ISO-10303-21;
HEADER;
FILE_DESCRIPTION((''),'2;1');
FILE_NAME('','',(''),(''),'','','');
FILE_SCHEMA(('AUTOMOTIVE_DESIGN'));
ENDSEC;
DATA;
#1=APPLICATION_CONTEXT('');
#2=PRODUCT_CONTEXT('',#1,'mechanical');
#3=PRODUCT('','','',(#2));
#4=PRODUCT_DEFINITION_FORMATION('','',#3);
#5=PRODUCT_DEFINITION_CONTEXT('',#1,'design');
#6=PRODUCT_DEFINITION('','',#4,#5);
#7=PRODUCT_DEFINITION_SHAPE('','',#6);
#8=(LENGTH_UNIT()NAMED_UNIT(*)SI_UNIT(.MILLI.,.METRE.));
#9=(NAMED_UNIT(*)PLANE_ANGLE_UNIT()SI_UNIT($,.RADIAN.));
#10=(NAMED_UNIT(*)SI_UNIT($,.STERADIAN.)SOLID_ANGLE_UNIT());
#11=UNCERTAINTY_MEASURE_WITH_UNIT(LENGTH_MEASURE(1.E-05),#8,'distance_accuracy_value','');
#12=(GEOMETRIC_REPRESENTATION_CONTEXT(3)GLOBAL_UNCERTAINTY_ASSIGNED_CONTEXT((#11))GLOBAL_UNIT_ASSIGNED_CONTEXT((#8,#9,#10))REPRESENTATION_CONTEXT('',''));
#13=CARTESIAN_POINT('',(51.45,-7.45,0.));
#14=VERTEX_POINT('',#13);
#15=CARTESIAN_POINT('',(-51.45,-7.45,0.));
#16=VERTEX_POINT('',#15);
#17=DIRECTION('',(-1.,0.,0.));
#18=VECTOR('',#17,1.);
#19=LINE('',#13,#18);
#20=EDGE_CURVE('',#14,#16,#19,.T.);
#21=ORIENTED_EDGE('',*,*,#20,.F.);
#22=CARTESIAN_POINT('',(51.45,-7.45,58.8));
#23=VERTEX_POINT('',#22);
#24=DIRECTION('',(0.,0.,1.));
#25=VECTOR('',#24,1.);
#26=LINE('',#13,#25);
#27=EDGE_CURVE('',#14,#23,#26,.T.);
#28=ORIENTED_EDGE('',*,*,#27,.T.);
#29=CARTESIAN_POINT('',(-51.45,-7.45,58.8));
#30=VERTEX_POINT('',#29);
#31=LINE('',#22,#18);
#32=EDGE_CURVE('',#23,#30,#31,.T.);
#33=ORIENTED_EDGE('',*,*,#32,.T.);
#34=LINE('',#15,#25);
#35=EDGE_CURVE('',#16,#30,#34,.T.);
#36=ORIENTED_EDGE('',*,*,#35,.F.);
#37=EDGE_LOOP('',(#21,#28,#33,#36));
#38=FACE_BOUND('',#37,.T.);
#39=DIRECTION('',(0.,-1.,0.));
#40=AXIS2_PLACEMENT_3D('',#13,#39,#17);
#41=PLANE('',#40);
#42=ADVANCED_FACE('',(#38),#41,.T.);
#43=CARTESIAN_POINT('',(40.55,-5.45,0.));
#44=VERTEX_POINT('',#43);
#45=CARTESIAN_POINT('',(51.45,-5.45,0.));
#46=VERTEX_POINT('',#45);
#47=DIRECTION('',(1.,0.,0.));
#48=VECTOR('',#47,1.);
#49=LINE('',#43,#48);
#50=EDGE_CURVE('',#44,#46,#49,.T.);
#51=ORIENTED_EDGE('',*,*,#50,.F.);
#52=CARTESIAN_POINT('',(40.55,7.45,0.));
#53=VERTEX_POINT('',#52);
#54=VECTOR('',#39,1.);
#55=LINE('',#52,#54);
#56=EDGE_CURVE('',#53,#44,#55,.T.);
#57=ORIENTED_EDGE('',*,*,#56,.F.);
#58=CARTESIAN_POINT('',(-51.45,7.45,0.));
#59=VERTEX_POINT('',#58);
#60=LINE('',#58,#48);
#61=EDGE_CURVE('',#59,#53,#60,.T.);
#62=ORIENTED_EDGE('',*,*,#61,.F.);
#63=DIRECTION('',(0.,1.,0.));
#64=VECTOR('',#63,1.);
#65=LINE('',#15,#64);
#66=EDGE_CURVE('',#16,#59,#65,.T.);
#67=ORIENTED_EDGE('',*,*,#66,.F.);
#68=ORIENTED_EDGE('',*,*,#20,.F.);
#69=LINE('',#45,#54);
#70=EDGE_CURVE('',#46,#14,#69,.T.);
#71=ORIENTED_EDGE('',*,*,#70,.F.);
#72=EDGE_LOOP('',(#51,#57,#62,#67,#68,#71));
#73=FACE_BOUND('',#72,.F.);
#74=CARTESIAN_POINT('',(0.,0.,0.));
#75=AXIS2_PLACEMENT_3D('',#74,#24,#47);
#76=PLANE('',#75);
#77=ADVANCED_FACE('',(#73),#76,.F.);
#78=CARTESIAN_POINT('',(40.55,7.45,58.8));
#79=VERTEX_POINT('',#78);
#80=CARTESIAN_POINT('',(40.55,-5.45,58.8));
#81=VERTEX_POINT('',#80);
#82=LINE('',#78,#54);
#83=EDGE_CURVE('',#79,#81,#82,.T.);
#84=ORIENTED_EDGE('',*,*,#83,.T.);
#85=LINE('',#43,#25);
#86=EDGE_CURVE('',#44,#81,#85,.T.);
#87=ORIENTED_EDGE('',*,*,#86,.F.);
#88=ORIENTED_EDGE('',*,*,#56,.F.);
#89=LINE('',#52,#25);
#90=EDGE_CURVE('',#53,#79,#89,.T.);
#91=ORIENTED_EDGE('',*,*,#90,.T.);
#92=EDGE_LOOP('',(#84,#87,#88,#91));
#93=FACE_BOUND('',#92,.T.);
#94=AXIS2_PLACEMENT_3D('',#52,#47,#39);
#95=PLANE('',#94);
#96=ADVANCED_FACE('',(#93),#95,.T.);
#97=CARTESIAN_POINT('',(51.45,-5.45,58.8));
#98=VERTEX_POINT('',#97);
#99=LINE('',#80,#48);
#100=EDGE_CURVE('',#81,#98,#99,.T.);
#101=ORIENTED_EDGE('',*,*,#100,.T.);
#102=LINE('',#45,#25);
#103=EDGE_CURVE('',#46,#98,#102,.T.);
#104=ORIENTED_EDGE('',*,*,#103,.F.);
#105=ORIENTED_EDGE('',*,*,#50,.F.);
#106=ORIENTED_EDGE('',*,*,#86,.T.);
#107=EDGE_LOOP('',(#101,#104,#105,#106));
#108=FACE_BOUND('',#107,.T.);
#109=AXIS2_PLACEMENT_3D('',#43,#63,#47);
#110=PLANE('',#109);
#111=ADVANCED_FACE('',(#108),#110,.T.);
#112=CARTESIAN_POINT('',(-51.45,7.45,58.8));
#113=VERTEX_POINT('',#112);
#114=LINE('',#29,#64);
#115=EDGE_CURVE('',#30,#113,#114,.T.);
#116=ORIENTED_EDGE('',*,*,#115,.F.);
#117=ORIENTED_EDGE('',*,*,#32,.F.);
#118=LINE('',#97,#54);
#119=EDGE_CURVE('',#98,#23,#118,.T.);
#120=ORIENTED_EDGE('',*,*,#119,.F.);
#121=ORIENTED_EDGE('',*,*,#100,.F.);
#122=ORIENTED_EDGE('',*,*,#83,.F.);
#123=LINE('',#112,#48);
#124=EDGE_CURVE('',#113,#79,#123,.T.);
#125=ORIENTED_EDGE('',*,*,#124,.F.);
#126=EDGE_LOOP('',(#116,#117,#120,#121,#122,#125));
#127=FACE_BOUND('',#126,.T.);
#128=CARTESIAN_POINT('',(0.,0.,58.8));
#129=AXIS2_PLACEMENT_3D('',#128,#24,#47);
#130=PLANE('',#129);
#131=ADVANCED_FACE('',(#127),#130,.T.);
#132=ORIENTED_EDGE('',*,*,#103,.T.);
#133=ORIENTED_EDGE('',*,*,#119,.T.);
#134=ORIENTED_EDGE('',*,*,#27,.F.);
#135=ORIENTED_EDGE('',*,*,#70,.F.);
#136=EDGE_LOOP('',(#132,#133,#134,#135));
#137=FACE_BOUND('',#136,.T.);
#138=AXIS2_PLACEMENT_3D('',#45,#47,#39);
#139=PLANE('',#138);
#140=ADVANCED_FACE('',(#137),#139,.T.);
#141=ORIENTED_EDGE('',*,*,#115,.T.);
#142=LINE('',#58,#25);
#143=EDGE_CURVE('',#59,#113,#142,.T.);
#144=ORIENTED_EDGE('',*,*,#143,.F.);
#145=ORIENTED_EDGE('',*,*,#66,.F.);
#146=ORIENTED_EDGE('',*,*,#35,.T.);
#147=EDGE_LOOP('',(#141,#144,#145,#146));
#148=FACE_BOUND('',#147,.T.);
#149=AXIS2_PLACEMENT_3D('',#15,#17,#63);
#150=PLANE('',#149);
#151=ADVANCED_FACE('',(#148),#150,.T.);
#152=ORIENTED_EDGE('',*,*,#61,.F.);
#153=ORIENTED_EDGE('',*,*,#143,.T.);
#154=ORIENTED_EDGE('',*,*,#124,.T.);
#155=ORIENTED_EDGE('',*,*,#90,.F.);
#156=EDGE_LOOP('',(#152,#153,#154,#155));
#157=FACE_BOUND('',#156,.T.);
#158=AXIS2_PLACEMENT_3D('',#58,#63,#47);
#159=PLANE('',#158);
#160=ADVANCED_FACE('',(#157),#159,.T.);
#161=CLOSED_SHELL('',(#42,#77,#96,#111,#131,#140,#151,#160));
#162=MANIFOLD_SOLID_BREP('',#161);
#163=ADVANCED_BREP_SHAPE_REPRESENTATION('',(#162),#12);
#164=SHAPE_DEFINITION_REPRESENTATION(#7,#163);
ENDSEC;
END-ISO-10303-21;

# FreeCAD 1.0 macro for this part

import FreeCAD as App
import Part
import Sketcher
from FreeCAD import Vector
Q = App.Units.Quantity

doc = App.newDocument("Part")
body = doc.addObject("PartDesign::Body", "Body")

# Sketch on XY plane
sketch1 = body.newObject("Sketcher::SketchObject", "Sketch")
sketch1.AttachmentSupport = (doc.getObject("XY_Plane"), [""])
sketch1.MapMode = "FlatFace"
sketch1.addGeometry([
    Part.LineSegment(Vector(40.5, 7.5, 0), Vector(-51.5, 7.5, 0)),  # 0
    Part.LineSegment(Vector(-51.5, 7.5, 0), Vector(-51.5, -7.5, 0)),  # 1
    Part.LineSegment(Vector(-51.5, -7.5, 0), Vector(51.5, -7.5, 0)),  # 2
    Part.LineSegment(Vector(51.5, -7.5, 0), Vector(51.5, -5.5, 0)),  # 3
    Part.LineSegment(Vector(51.5, -5.5, 0), Vector(40.5, -5.5, 0)),  # 4
    Part.LineSegment(Vector(40.5, -5.5, 0), Vector(40.5, 7.5, 0)),  # 5
], False)
sketch1.addConstraint([
    Sketcher.Constraint("Coincident", 0, 2, 1, 1),
    Sketcher.Constraint("Coincident", 1, 2, 2, 1),
    Sketcher.Constraint("Coincident", 2, 2, 3, 1),
    Sketcher.Constraint("Coincident", 3, 2, 4, 1),
    Sketcher.Constraint("Coincident", 4, 2, 5, 1),
    Sketcher.Constraint("Coincident", 5, 2, 0, 1),
    Sketcher.Constraint("Horizontal", 0),
    Sketcher.Constraint("Vertical", 1),
    Sketcher.Constraint("Horizontal", 2),
    Sketcher.Constraint("Vertical", 3),
    Sketcher.Constraint("Horizontal", 4),
    Sketcher.Constraint("Vertical", 5),
    Sketcher.Constraint("Symmetric", 0, 2, 2, 2, -1, 1),
    Sketcher.Constraint("DistanceX", 2, 1, 2, 2, Q("102.9 mm")),
    Sketcher.Constraint("DistanceX", 4, 2, 4, 1, Q("10.9 mm")),
    Sketcher.Constraint("DistanceY", 1, 2, 1, 1, Q("14.9 mm")),
    Sketcher.Constraint("DistanceY", 5, 1, 5, 2, Q("12.9 mm")),
])
pad1 = body.newObject("PartDesign::Pad", "Pad")
pad1.Profile = sketch1
pad1.Length = 58.8

doc.recompute()
